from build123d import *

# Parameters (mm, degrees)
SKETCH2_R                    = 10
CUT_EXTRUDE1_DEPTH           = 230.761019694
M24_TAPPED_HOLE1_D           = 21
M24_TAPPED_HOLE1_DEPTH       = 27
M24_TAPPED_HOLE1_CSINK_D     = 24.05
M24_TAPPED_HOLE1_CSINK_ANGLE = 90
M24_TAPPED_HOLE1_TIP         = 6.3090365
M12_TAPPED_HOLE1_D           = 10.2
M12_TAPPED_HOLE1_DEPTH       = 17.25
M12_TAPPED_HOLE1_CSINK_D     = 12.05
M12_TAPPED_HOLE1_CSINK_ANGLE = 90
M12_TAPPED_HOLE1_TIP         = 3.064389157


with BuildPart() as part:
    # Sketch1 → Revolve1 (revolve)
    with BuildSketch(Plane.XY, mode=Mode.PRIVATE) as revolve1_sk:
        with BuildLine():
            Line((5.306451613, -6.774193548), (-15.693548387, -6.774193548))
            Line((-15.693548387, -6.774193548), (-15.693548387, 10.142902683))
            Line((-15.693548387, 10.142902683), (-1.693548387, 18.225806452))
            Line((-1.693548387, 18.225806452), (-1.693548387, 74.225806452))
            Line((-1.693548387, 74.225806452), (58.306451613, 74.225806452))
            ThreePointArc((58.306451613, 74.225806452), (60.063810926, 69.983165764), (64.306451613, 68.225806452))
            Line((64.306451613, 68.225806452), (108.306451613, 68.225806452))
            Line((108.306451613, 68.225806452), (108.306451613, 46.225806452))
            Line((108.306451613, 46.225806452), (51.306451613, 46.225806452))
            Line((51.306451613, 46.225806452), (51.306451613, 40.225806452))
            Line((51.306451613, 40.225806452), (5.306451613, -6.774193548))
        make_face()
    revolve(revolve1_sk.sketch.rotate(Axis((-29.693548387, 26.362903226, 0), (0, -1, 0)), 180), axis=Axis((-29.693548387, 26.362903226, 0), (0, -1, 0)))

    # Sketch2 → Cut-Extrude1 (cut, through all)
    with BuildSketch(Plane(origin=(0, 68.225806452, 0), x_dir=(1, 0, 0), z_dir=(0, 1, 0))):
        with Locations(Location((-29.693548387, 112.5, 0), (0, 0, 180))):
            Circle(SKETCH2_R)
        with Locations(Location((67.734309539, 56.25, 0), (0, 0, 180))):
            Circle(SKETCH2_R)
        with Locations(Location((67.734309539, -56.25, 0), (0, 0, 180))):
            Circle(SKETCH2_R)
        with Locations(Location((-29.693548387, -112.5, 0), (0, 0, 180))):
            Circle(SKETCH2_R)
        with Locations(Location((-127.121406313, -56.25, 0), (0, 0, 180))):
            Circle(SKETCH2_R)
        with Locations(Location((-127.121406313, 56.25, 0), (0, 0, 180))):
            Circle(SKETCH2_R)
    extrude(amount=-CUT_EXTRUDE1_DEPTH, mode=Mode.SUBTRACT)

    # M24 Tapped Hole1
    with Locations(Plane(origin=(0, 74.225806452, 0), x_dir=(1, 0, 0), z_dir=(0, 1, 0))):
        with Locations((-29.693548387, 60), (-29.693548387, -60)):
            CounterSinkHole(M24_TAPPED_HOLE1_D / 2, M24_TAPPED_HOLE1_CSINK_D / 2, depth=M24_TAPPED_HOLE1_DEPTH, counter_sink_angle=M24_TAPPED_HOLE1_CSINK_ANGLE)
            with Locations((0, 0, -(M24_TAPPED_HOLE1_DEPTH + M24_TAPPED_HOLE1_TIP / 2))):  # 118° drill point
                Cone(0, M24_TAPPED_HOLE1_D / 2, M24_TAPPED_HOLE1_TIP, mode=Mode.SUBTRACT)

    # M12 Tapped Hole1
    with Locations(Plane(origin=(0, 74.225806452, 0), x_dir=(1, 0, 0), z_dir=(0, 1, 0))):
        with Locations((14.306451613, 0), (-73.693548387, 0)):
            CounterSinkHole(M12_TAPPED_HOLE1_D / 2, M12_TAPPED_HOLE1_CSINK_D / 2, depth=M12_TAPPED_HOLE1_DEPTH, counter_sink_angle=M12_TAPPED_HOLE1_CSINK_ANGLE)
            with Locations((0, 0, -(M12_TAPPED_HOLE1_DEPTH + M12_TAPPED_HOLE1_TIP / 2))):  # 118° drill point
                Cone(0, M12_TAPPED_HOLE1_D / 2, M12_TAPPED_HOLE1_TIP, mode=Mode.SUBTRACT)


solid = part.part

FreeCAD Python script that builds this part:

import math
import FreeCAD as App
import Part
import Sketcher
Q = App.Units.Quantity

doc = App.newDocument("Part")
body = doc.addObject("PartDesign::Body", "Body")

sketch1 = doc.addObject("Sketcher::SketchObject", "Sketch")
body.addObject(sketch1)
sketch1.AttachmentSupport = (doc.XY_Plane, [""])
sketch1.MapMode = "FlatFace"
sketch1.addGeometry([
    Part.LineSegment(App.Vector(-15.693548, -6.774194, 0), App.Vector(5.306452, -6.774194, 0)),
    Part.LineSegment(App.Vector(5.306452, -6.774194, 0), App.Vector(51.306452, 40.225806, 0)),
    Part.LineSegment(App.Vector(51.306452, 40.225806, 0), App.Vector(51.306452, 46.225806, 0)),
    Part.LineSegment(App.Vector(51.306452, 46.225806, 0), App.Vector(108.306452, 46.225806, 0)),
    Part.LineSegment(App.Vector(108.306452, 46.225806, 0), App.Vector(108.306452, 68.225806, 0)),
    Part.LineSegment(App.Vector(108.306452, 68.225806, 0), App.Vector(64.306452, 68.225806, 0)),
    Part.ArcOfCircle(Part.Circle(App.Vector(64.306452, 74.225806, 0), App.Vector(0, 0, 1), 6), math.radians(180), math.radians(270)),
    Part.LineSegment(App.Vector(58.306452, 74.225806, 0), App.Vector(-1.693548, 74.225806, 0)),
    Part.LineSegment(App.Vector(-1.693548, 74.225806, 0), App.Vector(-1.693548, 18.225806, 0)),
    Part.LineSegment(App.Vector(-1.693548, 18.225806, 0), App.Vector(-15.693548, 10.142903, 0)),
    Part.LineSegment(App.Vector(-15.693548, 10.142903, 0), App.Vector(-15.693548, -6.774194, 0)),
], False)
sketch1.addGeometry(Part.LineSegment(App.Vector(-29.693548, 74.225806, 0), App.Vector(-29.693548, -6.774194, 0)), True)
sketch1.addConstraint([
    Sketcher.Constraint("Coincident", 0, 2, 1, 1),
    Sketcher.Constraint("Coincident", 1, 2, 2, 1),
    Sketcher.Constraint("Coincident", 2, 2, 3, 1),
    Sketcher.Constraint("Coincident", 3, 2, 4, 1),
    Sketcher.Constraint("Coincident", 4, 2, 5, 1),
    Sketcher.Constraint("Tangent", 5, 2, 6, 2),
    Sketcher.Constraint("Coincident", 6, 1, 7, 1),
    Sketcher.Constraint("Coincident", 7, 2, 8, 1),
    Sketcher.Constraint("Coincident", 8, 2, 9, 1),
    Sketcher.Constraint("Coincident", 9, 2, 10, 1),
    Sketcher.Constraint("Coincident", 10, 2, 0, 1),
    Sketcher.Constraint("Horizontal", 0),
    Sketcher.Constraint("Vertical", 2),
    Sketcher.Constraint("Horizontal", 3),
    Sketcher.Constraint("Vertical", 4),
    Sketcher.Constraint("Horizontal", 5),
    Sketcher.Constraint("Horizontal", 7),
    Sketcher.Constraint("Vertical", 8),
    Sketcher.Constraint("Vertical", 10),
    Sketcher.Constraint("Vertical", 11),
    Sketcher.Constraint("Horizontal", 7, 2, 11, 1),
    Sketcher.Constraint("Horizontal", 10, 2, 11, 2),
    Sketcher.Constraint("Radius", 6, 6.0),
    Sketcher.Constraint("DistanceX", 0, 1, 0, 2, 21.0),
    Sketcher.Constraint("DistanceX", 3, 1, 3, 2, 57.0),
    Sketcher.Constraint("DistanceX", 5, 2, 5, 1, 44.0),
    Sketcher.Constraint("DistanceX", 7, 2, 7, 1, 60.0),
    Sketcher.Constraint("DistanceY", 2, 1, 2, 2, 6.0),
    Sketcher.Constraint("DistanceY", 4, 1, 4, 2, 22.0),
    Sketcher.Constraint("DistanceY", 8, 2, 8, 1, 56.0),
    Sketcher.Constraint("DistanceY", 11, 2, 11, 1, 81.0),
    Sketcher.Constraint("Angle", 9, Q("-150 deg")),
    Sketcher.Constraint("DistanceX", 0, 2, 6, 3, 59.0),
    Sketcher.Constraint("DistanceY", 0, 2, 6, 3, 81.0),
    Sketcher.Constraint("DistanceX", 11, 1, 7, 2, 28.0),
    Sketcher.Constraint("DistanceX", -1, 1, 6, 3, 64.306452),
    Sketcher.Constraint("DistanceY", -1, 1, 6, 3, 74.225806),
])
revolution = doc.addObject("PartDesign::Revolution", "Revolution")
body.addObject(revolution)
revolution.Profile = sketch1
revolution.ReferenceAxis = (sketch1, ["Axis0"])
revolution.Angle = 360

sketch2 = doc.addObject("Sketcher::SketchObject", "Sketch001")
body.addObject(sketch2)
sketch2.AttachmentSupport = (doc.XZ_Plane, [""])
sketch2.MapMode = "FlatFace"
sketch2.AttachmentOffset = App.Placement(App.Vector(0, 0, -68.225806), App.Rotation())
sketch2.addGeometry([
    Part.Circle(App.Vector(-29.693548, -112.5, 0), App.Vector(0, 0, 1), 10),
    Part.Circle(App.Vector(67.73431, -56.25, 0), App.Vector(0, 0, 1), 10),
    Part.Circle(App.Vector(67.73431, 56.25, 0), App.Vector(0, 0, 1), 10),
    Part.Circle(App.Vector(-29.693548, 112.5, 0), App.Vector(0, 0, 1), 10),
    Part.Circle(App.Vector(-127.121406, 56.25, 0), App.Vector(0, 0, 1), 10),
    Part.Circle(App.Vector(-127.121406, -56.25, 0), App.Vector(0, 0, 1), 10),
], False)
sketch2.addConstraint([
    Sketcher.Constraint("Equal", 0, 1),
    Sketcher.Constraint("Equal", 1, 2),
    Sketcher.Constraint("Equal", 2, 3),
    Sketcher.Constraint("Equal", 3, 4),
    Sketcher.Constraint("Equal", 4, 5),
    Sketcher.Constraint("Symmetric", 1, 3, 2, 3, -1),
    Sketcher.Constraint("Symmetric", 0, 3, 3, 3, -1),
    Sketcher.Constraint("Symmetric", 4, 3, 5, 3, -1),
    Sketcher.Constraint("Horizontal", 2, 3, 4, 3),
    Sketcher.Constraint("Diameter", 0, 20.0),
    Sketcher.Constraint("DistanceY", 0, 3, 3, 3, 225.0),
    Sketcher.Constraint("DistanceY", 1, 3, 2, 3, 112.5),
    Sketcher.Constraint("DistanceX", 0, 3, -1, 1, 29.693548),
    Sketcher.Constraint("DistanceX", -1, 1, 1, 3, 67.73431),
    Sketcher.Constraint("DistanceX", 4, 3, -1, 1, 127.121406),
])
pocket1 = doc.addObject("PartDesign::Pocket", "Pocket")
body.addObject(pocket1)
pocket1.Profile = sketch2
pocket1.Type = "ThroughAll"
pocket1.Reversed = True

sketch3 = doc.addObject("Sketcher::SketchObject", "Sketch002")
body.addObject(sketch3)
sketch3.AttachmentSupport = (doc.XZ_Plane, [""])
sketch3.MapMode = "FlatFace"
sketch3.AttachmentOffset = App.Placement(App.Vector(0, 0, -74.225806), App.Rotation())
sketch3.addGeometry([
    Part.Circle(App.Vector(-29.693548, -60, 0), App.Vector(0, 0, 1), 10.5),
    Part.Circle(App.Vector(-29.693548, 60, 0), App.Vector(0, 0, 1), 10.5),
], False)
sketch3.addConstraint([
    Sketcher.Constraint("Equal", 0, 1),
    Sketcher.Constraint("Symmetric", 0, 3, 1, 3, -1),
    Sketcher.Constraint("Diameter", 0, 21.0),
    Sketcher.Constraint("DistanceY", 0, 3, -1, 1, 60.0),
    Sketcher.Constraint("DistanceX", 0, 3, -1, 1, 29.693548),
])
doc.recompute()
hole = doc.addObject("PartDesign::Hole", "Hole")
body.addObject(hole)
hole.Profile = sketch3
hole.ThreadType = "None"
hole.Diameter = 21
hole.DepthType = "Dimension"
hole.Depth = 27
hole.DrillPoint = "Angled"
hole.DrillPointAngle = 118
hole.HoleCutType = "Countersink"
hole.HoleCutDiameter = 24.05
hole.HoleCutCountersinkAngle = 90
hole.Reversed = True

sketch4 = doc.addObject("Sketcher::SketchObject", "Sketch003")
body.addObject(sketch4)
sketch4.AttachmentSupport = (doc.XZ_Plane, [""])
sketch4.MapMode = "FlatFace"
sketch4.AttachmentOffset = App.Placement(App.Vector(0, 0, -74.225806), App.Rotation())
sketch4.addGeometry([
    Part.Circle(App.Vector(14.306452, 0, 0), App.Vector(0, 0, 1), 5.1),
    Part.Circle(App.Vector(-73.693548, 0, 0), App.Vector(0, 0, 1), 5.1),
], False)
sketch4.addConstraint([
    Sketcher.Constraint("Equal", 0, 1),
    Sketcher.Constraint("PointOnObject", 0, 3, -1),
    Sketcher.Constraint("PointOnObject", 1, 3, -1),
    Sketcher.Constraint("Diameter", 0, 10.2),
    Sketcher.Constraint("DistanceX", 1, 3, 0, 3, 88.0),
    Sketcher.Constraint("DistanceX", -1, 1, 0, 3, 14.306452),
])
doc.recompute()
hole2 = doc.addObject("PartDesign::Hole", "Hole001")
body.addObject(hole2)
hole2.Profile = sketch4
hole2.ThreadType = "None"
hole2.Diameter = 10.2
hole2.DepthType = "Dimension"
hole2.Depth = 17.25
hole2.DrillPoint = "Angled"
hole2.DrillPointAngle = 118
hole2.HoleCutType = "Countersink"
hole2.HoleCutDiameter = 12.05
hole2.HoleCutCountersinkAngle = 90
hole2.Reversed = True

doc.recompute()
